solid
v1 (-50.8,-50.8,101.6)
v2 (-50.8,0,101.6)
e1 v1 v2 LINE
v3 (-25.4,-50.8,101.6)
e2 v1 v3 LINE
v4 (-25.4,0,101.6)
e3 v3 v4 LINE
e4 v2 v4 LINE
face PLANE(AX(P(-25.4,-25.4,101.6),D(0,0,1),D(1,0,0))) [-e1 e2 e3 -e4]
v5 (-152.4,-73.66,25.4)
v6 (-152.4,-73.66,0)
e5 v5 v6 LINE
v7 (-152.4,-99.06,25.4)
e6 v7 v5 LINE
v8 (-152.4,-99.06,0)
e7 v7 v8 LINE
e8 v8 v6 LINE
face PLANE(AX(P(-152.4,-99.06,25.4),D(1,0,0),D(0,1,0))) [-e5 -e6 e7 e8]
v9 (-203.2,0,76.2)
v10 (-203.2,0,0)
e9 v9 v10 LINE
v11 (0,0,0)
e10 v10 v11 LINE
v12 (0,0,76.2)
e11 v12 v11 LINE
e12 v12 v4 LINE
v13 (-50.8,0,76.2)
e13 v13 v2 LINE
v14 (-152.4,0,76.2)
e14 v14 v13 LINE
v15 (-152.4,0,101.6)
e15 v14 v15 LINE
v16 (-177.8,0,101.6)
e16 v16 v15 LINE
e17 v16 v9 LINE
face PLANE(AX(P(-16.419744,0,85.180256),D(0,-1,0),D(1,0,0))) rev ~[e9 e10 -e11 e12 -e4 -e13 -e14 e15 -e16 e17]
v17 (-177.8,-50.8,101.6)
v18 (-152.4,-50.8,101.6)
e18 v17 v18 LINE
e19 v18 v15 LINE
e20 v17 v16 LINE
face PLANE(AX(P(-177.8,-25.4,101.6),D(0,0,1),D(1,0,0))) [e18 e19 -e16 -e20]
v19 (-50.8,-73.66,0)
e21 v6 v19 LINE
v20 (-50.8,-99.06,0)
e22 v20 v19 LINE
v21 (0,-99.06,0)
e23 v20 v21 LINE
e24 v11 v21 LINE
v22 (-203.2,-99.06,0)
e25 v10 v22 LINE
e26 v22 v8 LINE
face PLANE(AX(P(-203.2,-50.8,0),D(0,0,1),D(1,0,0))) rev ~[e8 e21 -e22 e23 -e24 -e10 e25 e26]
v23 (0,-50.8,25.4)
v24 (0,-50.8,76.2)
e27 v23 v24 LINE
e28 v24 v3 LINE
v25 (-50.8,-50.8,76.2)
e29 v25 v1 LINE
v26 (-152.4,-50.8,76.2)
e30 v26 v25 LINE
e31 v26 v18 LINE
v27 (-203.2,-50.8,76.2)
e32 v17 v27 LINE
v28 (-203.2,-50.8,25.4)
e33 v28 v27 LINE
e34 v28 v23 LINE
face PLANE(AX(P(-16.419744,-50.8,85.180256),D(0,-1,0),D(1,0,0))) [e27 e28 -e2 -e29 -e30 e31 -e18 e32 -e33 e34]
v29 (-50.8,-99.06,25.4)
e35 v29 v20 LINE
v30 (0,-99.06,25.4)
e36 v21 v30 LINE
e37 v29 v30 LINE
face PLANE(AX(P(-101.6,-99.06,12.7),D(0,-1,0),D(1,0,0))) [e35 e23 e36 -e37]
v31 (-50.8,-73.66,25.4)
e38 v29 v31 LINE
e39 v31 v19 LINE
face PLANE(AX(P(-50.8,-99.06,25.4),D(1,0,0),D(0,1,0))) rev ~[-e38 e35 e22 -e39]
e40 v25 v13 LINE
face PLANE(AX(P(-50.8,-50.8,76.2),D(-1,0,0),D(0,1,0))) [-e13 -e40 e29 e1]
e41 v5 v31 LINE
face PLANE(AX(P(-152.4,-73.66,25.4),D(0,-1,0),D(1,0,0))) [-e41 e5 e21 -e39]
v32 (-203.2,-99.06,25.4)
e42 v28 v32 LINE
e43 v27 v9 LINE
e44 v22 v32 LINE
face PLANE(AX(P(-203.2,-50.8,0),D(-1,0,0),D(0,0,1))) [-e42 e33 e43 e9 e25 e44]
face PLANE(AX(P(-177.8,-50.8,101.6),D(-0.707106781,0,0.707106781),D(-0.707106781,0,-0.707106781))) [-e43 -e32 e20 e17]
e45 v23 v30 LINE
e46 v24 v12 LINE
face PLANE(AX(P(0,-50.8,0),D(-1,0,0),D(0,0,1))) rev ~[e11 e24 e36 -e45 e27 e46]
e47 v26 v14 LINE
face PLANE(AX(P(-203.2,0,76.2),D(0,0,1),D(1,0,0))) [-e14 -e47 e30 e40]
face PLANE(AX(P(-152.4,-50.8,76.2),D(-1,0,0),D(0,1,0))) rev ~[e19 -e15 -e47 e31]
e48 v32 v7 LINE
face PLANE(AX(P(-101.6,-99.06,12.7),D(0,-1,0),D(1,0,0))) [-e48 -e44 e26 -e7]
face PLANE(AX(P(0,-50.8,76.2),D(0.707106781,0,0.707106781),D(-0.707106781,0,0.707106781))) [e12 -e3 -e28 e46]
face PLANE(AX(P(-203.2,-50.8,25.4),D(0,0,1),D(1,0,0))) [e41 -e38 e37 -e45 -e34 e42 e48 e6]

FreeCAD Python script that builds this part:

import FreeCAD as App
import Part
import Sketcher

V = App.Vector
Q = App.Units.Quantity

doc = App.newDocument("Part")
body = doc.addObject("PartDesign::Body", "Body")

sketch1 = doc.addObject("Sketcher::SketchObject", "Sketch")
body.addObject(sketch1)
sketch1.AttachmentSupport = (doc.XZ_Plane, [""])
sketch1.MapMode = "FlatFace"
sketch1.addGeometry([
    Part.LineSegment(V(-203, 76, 0), V(-203, 0, 0)),
    Part.LineSegment(V(-203, 0, 0), V(0, 0, 0)),
    Part.LineSegment(V(0, 0, 0), V(0, 76, 0)),
    Part.LineSegment(V(0, 76, 0), V(-203, 76, 0)),
], False)
sketch1.addConstraint([
    Sketcher.Constraint("Coincident", 0, 2, 1, 1),
    Sketcher.Constraint("Coincident", 1, 2, 2, 1),
    Sketcher.Constraint("Coincident", 2, 2, 3, 1),
    Sketcher.Constraint("Coincident", 3, 2, 0, 1),
    Sketcher.Constraint("Vertical", 0),
    Sketcher.Constraint("Horizontal", 1),
    Sketcher.Constraint("Vertical", 2),
    Sketcher.Constraint("Horizontal", 3),
    Sketcher.Constraint("Coincident", 1, 2, -1, 1),
    Sketcher.Constraint("DistanceX", 1, 1, 1, 2, Q("8 in")),
    Sketcher.Constraint("DistanceY", 0, 2, 0, 1, Q("3 in")),
])
pad1 = doc.addObject("PartDesign::Pad", "Pad")
body.addObject(pad1)
pad1.Profile = sketch1
pad1.Length = Q("2 in")

sketch2 = doc.addObject("Sketcher::SketchObject", "Sketch001")
body.addObject(sketch2)
sketch2.AttachmentSupport = (doc.XY_Plane, [""])
sketch2.MapMode = "FlatFace"
sketch2.AttachmentOffset = App.Placement(V(0, 0, 3 * 25.4), App.Rotation())
sketch2.addGeometry([
    Part.LineSegment(V(-203, 0, 0), V(-203, -51, 0)),
    Part.LineSegment(V(-203, -51, 0), V(-152, -51, 0)),
    Part.LineSegment(V(-152, -51, 0), V(-152, 0, 0)),
    Part.LineSegment(V(-152, 0, 0), V(-203, 0, 0)),
    Part.LineSegment(V(-51, 0, 0), V(-51, -51, 0)),
    Part.LineSegment(V(-51, -51, 0), V(0, -51, 0)),
    Part.LineSegment(V(0, -51, 0), V(0, 0, 0)),
    Part.LineSegment(V(0, 0, 0), V(-51, 0, 0)),
], False)
sketch2.addConstraint([
    Sketcher.Constraint("Coincident", 0, 2, 1, 1),
    Sketcher.Constraint("Coincident", 1, 2, 2, 1),
    Sketcher.Constraint("Coincident", 2, 2, 3, 1),
    Sketcher.Constraint("Coincident", 3, 2, 0, 1),
    Sketcher.Constraint("Coincident", 4, 2, 5, 1),
    Sketcher.Constraint("Coincident", 5, 2, 6, 1),
    Sketcher.Constraint("Coincident", 6, 2, 7, 1),
    Sketcher.Constraint("Coincident", 7, 2, 4, 1),
    Sketcher.Constraint("Vertical", 0),
    Sketcher.Constraint("Horizontal", 1),
    Sketcher.Constraint("Vertical", 2),
    Sketcher.Constraint("Horizontal", 3),
    Sketcher.Constraint("Vertical", 4),
    Sketcher.Constraint("Horizontal", 5),
    Sketcher.Constraint("Vertical", 6),
    Sketcher.Constraint("Horizontal", 7),
    Sketcher.Constraint("Coincident", 6, 2, -1, 1),
    Sketcher.Constraint("PointOnObject", 2, 2, -1),
    Sketcher.Constraint("Horizontal", 1, 2, 4, 2),
    Sketcher.Constraint("Equal", 3, 5),
    Sketcher.Constraint("Equal", 7, 0),
    Sketcher.Constraint("DistanceX", 1, 1, 1, 2, Q("2 in")),
    Sketcher.Constraint("DistanceX", 0, 2, -1, 1, Q("8 in")),
])
pad2 = doc.addObject("PartDesign::Pad", "Pad001")
body.addObject(pad2)
pad2.Profile = sketch2
pad2.Length = Q("1 in")

sketch3 = doc.addObject("Sketcher::SketchObject", "Sketch002")
body.addObject(sketch3)
sketch3.AttachmentSupport = (doc.XZ_Plane, [""])
sketch3.MapMode = "FlatFace"
sketch3.AttachmentOffset = App.Placement(V(0, 0, 2 * 25.4), App.Rotation())
sketch3.addGeometry([
    Part.LineSegment(V(-203, 25, 0), V(-203, 0, 0)),
    Part.LineSegment(V(-203, 0, 0), V(0, 0, 0)),
    Part.LineSegment(V(0, 0, 0), V(0, 25, 0)),
    Part.LineSegment(V(0, 25, 0), V(-203, 25, 0)),
], False)
sketch3.addConstraint([
    Sketcher.Constraint("Coincident", 0, 2, 1, 1),
    Sketcher.Constraint("Coincident", 1, 2, 2, 1),
    Sketcher.Constraint("Coincident", 2, 2, 3, 1),
    Sketcher.Constraint("Coincident", 3, 2, 0, 1),
    Sketcher.Constraint("Vertical", 0),
    Sketcher.Constraint("Horizontal", 1),
    Sketcher.Constraint("Vertical", 2),
    Sketcher.Constraint("Horizontal", 3),
    Sketcher.Constraint("Coincident", 1, 2, -1, 1),
    Sketcher.Constraint("DistanceX", 1, 1, 1, 2, Q("8 in")),
    Sketcher.Constraint("DistanceY", 0, 2, 0, 1, Q("1 in")),
])
pad3 = doc.addObject("PartDesign::Pad", "Pad002")
body.addObject(pad3)
pad3.Profile = sketch3
pad3.Length = Q("1.9 in")

sketch4 = doc.addObject("Sketcher::SketchObject", "Sketch003")
body.addObject(sketch4)
sketch4.AttachmentSupport = (doc.XY_Plane, [""])
sketch4.MapMode = "FlatFace"
sketch4.AttachmentOffset = App.Placement(V(0, 0, 1 * 25.4), App.Rotation())
sketch4.addGeometry([
    Part.LineSegment(V(-152, -74, 0), V(-152, -99, 0)),
    Part.LineSegment(V(-152, -99, 0), V(-51, -99, 0)),
    Part.LineSegment(V(-51, -99, 0), V(-51, -74, 0)),
    Part.LineSegment(V(-51, -74, 0), V(-152, -74, 0)),
], False)
sketch4.addConstraint([
    Sketcher.Constraint("Coincident", 0, 2, 1, 1),
    Sketcher.Constraint("Coincident", 1, 2, 2, 1),
    Sketcher.Constraint("Coincident", 2, 2, 3, 1),
    Sketcher.Constraint("Coincident", 3, 2, 0, 1),
    Sketcher.Constraint("Vertical", 0),
    Sketcher.Constraint("Horizontal", 1),
    Sketcher.Constraint("Vertical", 2),
    Sketcher.Constraint("Horizontal", 3),
    Sketcher.Constraint("DistanceX", 1, 1, 1, 2, Q("4 in")),
    Sketcher.Constraint("DistanceY", 0, 2, 0, 1, Q("1 in")),
    Sketcher.Constraint("DistanceX", 0, 2, -1, 1, Q("6 in")),
    Sketcher.Constraint("DistanceY", 0, 2, -1, 1, Q("3.9 in")),
])
pocket1 = doc.addObject("PartDesign::Pocket", "Pocket")
body.addObject(pocket1)
pocket1.Profile = sketch4
pocket1.Length = Q("1 in")

sketch5 = doc.addObject("Sketcher::SketchObject", "Sketch004")
body.addObject(sketch5)
sketch5.AttachmentSupport = (doc.XY_Plane, [""])
sketch5.MapMode = "FlatFace"
sketch5.AttachmentOffset = App.Placement(V(0, 0, 4 * 25.4), App.Rotation())
sketch5.addGeometry([
    Part.LineSegment(V(-25, 0, 0), V(-25, -51, 0)),
    Part.LineSegment(V(-25, -51, 0), V(0, -51, 0)),
    Part.LineSegment(V(0, -51, 0), V(0, 0, 0)),
    Part.LineSegment(V(0, 0, 0), V(-25, 0, 0)),
    Part.LineSegment(V(-203, 0, 0), V(-203, -51, 0)),
    Part.LineSegment(V(-203, -51, 0), V(-178, -51, 0)),
    Part.LineSegment(V(-178, -51, 0), V(-178, 0, 0)),
    Part.LineSegment(V(-178, 0, 0), V(-203, 0, 0)),
], False)
sketch5.addConstraint([
    Sketcher.Constraint("Coincident", 0, 2, 1, 1),
    Sketcher.Constraint("Coincident", 1, 2, 2, 1),
    Sketcher.Constraint("Coincident", 2, 2, 3, 1),
    Sketcher.Constraint("Coincident", 3, 2, 0, 1),
    Sketcher.Constraint("Coincident", 4, 2, 5, 1),
    Sketcher.Constraint("Coincident", 5, 2, 6, 1),
    Sketcher.Constraint("Coincident", 6, 2, 7, 1),
    Sketcher.Constraint("Coincident", 7, 2, 4, 1),
    Sketcher.Constraint("Vertical", 0),
    Sketcher.Constraint("Horizontal", 1),
    Sketcher.Constraint("Vertical", 2),
    Sketcher.Constraint("Horizontal", 3),
    Sketcher.Constraint("Vertical", 4),
    Sketcher.Constraint("Horizontal", 5),
    Sketcher.Constraint("Vertical", 6),
    Sketcher.Constraint("Horizontal", 7),
    Sketcher.Constraint("Coincident", 2, 2, -1, 1),
    Sketcher.Constraint("PointOnObject", 6, 2, -1),
    Sketcher.Constraint("Horizontal", 1, 2, 4, 2),
    Sketcher.Constraint("Equal", 3, 5),
    Sketcher.Constraint("DistanceX", 1, 1, 1, 2, Q("1 in")),
    Sketcher.Constraint("DistanceY", 0, 2, 0, 1, Q("2 in")),
    Sketcher.Constraint("DistanceX", 4, 2, -1, 1, Q("8 in")),
])
pocket2 = doc.addObject("PartDesign::Pocket", "Pocket001")
body.addObject(pocket2)
pocket2.Profile = sketch5
pocket2.Length = Q("1 in")

sketch6 = doc.addObject("Sketcher::SketchObject", "Sketch005")
body.addObject(sketch6)
sketch6.AttachmentSupport = (doc.XZ_Plane, [""])
sketch6.MapMode = "FlatFace"
sketch6.AttachmentOffset = App.Placement(V(0, 0, 2 * 25.4), App.Rotation())
sketch6.addGeometry([
    Part.LineSegment(V(0, 76, 0), V(-25, 102, 0)),
    Part.LineSegment(V(-25, 102, 0), V(-25, 76, 0)),
    Part.LineSegment(V(-25, 76, 0), V(0, 76, 0)),
    Part.LineSegment(V(-178, 102, 0), V(-203, 76, 0)),
    Part.LineSegment(V(-203, 76, 0), V(-178, 76, 0)),
    Part.LineSegment(V(-178, 76, 0), V(-178, 102, 0)),
], False)
sketch6.addConstraint([
    Sketcher.Constraint("Coincident", 0, 2, 1, 1),
    Sketcher.Constraint("Coincident", 1, 2, 2, 1),
    Sketcher.Constraint("Coincident", 2, 2, 0, 1),
    Sketcher.Constraint("Coincident", 3, 2, 4, 1),
    Sketcher.Constraint("Coincident", 4, 2, 5, 1),
    Sketcher.Constraint("Coincident", 5, 2, 3, 1),
    Sketcher.Constraint("Vertical", 1),
    Sketcher.Constraint("Horizontal", 2),
    Sketcher.Constraint("Horizontal", 4),
    Sketcher.Constraint("Vertical", 5),
    Sketcher.Constraint("PointOnObject", 2, 2, -2),
    Sketcher.Constraint("Perpendicular", 0, 3),
    Sketcher.Constraint("Horizontal", 2, 2, 3, 2),
    Sketcher.Constraint("Horizontal", 0, 2, 5, 2),
    Sketcher.Constraint("Equal", 2, 4),
    Sketcher.Constraint("DistanceX", 2, 1, 2, 2, Q("1 in")),
    Sketcher.Constraint("DistanceY", -1, 1, 0, 2, Q("4 in")),
    Sketcher.Constraint("DistanceX", 3, 2, -1, 1, Q("8 in")),
])
pad4 = doc.addObject("PartDesign::Pad", "Pad003")
body.addObject(pad4)
pad4.Profile = sketch6
pad4.Length = Q("2 in")
pad4.Reversed = True

doc.recompute()
